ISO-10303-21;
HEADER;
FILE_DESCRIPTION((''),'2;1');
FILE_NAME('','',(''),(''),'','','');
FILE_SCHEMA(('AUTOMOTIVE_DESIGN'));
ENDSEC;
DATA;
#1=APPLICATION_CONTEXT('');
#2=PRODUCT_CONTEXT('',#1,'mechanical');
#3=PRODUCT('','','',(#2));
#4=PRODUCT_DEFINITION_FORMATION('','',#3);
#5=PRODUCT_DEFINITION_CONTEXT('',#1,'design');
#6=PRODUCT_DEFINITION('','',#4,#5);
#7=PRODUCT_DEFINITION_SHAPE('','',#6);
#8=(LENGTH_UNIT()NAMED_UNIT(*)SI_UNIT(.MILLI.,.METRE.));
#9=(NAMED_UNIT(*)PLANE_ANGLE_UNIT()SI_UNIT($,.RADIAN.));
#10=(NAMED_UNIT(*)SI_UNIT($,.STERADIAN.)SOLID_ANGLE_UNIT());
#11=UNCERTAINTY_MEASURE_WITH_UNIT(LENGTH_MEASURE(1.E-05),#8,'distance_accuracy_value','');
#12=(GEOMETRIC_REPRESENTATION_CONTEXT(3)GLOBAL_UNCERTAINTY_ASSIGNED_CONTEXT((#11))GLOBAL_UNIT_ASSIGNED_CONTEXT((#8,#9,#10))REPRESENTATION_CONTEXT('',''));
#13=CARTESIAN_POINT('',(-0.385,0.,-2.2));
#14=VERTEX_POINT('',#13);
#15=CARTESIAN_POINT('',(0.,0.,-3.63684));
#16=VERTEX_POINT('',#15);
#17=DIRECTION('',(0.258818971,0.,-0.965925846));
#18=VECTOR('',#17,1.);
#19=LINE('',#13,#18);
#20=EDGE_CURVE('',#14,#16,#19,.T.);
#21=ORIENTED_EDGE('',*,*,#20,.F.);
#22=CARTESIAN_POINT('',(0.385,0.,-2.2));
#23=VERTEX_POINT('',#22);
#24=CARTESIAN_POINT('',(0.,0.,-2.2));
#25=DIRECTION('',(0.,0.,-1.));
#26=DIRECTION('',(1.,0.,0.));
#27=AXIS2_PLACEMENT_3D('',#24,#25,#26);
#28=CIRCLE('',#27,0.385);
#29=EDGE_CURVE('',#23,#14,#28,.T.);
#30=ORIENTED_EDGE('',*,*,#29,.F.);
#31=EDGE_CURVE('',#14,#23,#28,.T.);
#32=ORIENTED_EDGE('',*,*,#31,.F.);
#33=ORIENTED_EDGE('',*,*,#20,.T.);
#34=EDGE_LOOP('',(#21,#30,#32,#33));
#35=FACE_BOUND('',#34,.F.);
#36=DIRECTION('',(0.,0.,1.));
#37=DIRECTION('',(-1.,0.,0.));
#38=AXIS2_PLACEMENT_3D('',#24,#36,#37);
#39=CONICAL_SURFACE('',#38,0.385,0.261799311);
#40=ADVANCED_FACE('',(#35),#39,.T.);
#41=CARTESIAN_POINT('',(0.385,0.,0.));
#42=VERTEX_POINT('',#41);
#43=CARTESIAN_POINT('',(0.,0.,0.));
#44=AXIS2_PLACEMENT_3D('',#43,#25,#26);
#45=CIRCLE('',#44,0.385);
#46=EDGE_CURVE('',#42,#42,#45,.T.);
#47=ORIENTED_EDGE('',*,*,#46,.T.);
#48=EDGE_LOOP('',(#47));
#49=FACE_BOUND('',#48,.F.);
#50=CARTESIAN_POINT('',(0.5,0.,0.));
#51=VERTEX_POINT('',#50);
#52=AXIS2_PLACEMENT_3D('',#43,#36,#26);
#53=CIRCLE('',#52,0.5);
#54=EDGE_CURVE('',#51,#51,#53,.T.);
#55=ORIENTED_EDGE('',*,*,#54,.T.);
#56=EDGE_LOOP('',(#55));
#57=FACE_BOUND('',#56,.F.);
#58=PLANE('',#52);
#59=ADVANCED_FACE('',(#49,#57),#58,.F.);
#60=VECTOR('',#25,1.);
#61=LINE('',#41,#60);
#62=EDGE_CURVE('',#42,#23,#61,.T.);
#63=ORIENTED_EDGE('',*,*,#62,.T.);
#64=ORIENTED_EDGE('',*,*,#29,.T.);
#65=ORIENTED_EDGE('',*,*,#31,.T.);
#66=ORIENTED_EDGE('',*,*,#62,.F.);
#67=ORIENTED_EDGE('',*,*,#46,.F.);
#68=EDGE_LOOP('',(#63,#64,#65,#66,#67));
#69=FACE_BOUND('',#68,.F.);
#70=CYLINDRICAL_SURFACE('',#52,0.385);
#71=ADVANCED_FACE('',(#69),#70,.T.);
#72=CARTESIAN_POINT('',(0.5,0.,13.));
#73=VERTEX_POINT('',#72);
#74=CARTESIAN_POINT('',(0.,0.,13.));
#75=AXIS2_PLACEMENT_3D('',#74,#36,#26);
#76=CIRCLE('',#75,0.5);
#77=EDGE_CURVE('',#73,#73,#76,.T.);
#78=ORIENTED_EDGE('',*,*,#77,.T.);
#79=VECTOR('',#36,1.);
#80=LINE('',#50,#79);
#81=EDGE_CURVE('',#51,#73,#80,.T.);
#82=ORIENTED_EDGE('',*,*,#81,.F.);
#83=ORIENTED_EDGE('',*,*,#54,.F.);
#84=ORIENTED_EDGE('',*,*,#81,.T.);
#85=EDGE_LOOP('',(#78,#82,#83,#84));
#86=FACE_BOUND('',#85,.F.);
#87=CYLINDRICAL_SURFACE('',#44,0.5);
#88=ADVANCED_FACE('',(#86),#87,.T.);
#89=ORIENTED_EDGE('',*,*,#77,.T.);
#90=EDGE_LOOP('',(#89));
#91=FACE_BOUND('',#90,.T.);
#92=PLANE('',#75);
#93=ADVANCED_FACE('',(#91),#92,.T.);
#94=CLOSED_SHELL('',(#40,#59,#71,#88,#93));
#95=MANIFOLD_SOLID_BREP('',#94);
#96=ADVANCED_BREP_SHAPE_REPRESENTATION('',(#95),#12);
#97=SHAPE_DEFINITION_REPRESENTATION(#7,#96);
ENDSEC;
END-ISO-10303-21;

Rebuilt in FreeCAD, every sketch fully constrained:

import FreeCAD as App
import Part
import Sketcher

V = App.Vector
Q = App.Units.Quantity

doc = App.newDocument("Part")
body = doc.addObject("PartDesign::Body", "Body")

sketch1 = doc.addObject("Sketcher::SketchObject", "Sketch")
body.addObject(sketch1)
sketch1.AttachmentSupport = (doc.XY_Plane, [""])
sketch1.MapMode = "FlatFace"
sketch1.addGeometry(Part.Circle(V(0, 0, 0), V(0, 0, 1), 0.5), False)
sketch1.addConstraint(Sketcher.Constraint("Coincident", 0, 3, -1, 1))
sketch1.addConstraint(Sketcher.Constraint("Diameter", 0, Q("1 mm")))
pad1 = doc.addObject("PartDesign::Pad", "Pad")
body.addObject(pad1)
pad1.Profile = sketch1
pad1.Length = 13

sketch2 = doc.addObject("Sketcher::SketchObject", "Sketch001")
body.addObject(sketch2)
sketch2.AttachmentSupport = (doc.XY_Plane, [""])
sketch2.MapMode = "FlatFace"
sketch2.addGeometry(Part.Circle(V(0, 0, 0), V(0, 0, 1), 0.39), False)
sketch2.addConstraint(Sketcher.Constraint("Coincident", 0, 3, -1, 1))
sketch2.addConstraint(Sketcher.Constraint("Diameter", 0, Q("0.77 mm")))
pad2 = doc.addObject("PartDesign::Pad", "Pad001")
body.addObject(pad2)
pad2.Profile = sketch2
pad2.Length = 2.2
pad2.Reversed = True

sketch3 = doc.addObject("Sketcher::SketchObject", "Sketch002")
body.addObject(sketch3)
sketch3.AttachmentSupport = (doc.XZ_Plane, [""])
sketch3.MapMode = "FlatFace"
sketch3.addGeometry(Part.LineSegment(V(-0.39, -2.2, 0), V(0, -3.64, 0)), False)
sketch3.addGeometry(Part.LineSegment(V(0, -3.64, 0), V(0, -2.2, 0)), False)
sketch3.addGeometry(Part.LineSegment(V(0, -2.2, 0), V(-0.39, -2.2, 0)), False)
sketch3.addConstraint(Sketcher.Constraint("Coincident", 0, 2, 1, 1))
sketch3.addConstraint(Sketcher.Constraint("Coincident", 1, 2, 2, 1))
sketch3.addConstraint(Sketcher.Constraint("Coincident", 2, 2, 0, 1))
sketch3.addConstraint(Sketcher.Constraint("Vertical", 1))
sketch3.addConstraint(Sketcher.Constraint("Horizontal", 2))
sketch3.addConstraint(Sketcher.Constraint("PointOnObject", 0, 2, -2))
sketch3.addConstraint(Sketcher.Constraint("Angle", 0, Q("-75.000004 deg")))
sketch3.addConstraint(Sketcher.Constraint("DistanceY", 1, 2, -1, 1, Q("2.2 mm")))
sketch3.addConstraint(Sketcher.Constraint("DistanceX", 2, 2, 2, 1, Q("0.385 mm")))
revolution = doc.addObject("PartDesign::Revolution", "Revolution")
body.addObject(revolution)
revolution.Profile = sketch3
revolution.ReferenceAxis = (sketch3, ["V_Axis"])
revolution.Angle = 360

doc.recompute()
